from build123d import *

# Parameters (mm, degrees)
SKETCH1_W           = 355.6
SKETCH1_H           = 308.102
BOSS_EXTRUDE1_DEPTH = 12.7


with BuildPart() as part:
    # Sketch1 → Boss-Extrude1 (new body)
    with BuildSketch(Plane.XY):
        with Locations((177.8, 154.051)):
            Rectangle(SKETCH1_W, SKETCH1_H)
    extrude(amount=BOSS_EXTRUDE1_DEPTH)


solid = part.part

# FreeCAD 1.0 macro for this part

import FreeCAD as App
import Part
import Sketcher

V = App.Vector
Q = App.Units.Quantity

doc = App.newDocument("Part")
body = doc.addObject("PartDesign::Body", "Body")

# Sketch on XY plane
sketch1 = body.newObject("Sketcher::SketchObject", "Sketch")
sketch1.AttachmentSupport = (doc.getObject("XY_Plane"), [""])
sketch1.MapMode = "FlatFace"
sketch1.addGeometry(Part.LineSegment(V(0, 308, 0), V(0, 0, 0)), False)
sketch1.addGeometry(Part.LineSegment(V(0, 0, 0), V(356, 0, 0)), False)
sketch1.addGeometry(Part.LineSegment(V(356, 0, 0), V(356, 308, 0)), False)
sketch1.addGeometry(Part.LineSegment(V(356, 308, 0), V(0, 308, 0)), False)
sketch1.addConstraint(Sketcher.Constraint("Coincident", 0, 2, 1, 1))
sketch1.addConstraint(Sketcher.Constraint("Coincident", 1, 2, 2, 1))
sketch1.addConstraint(Sketcher.Constraint("Coincident", 2, 2, 3, 1))
sketch1.addConstraint(Sketcher.Constraint("Coincident", 3, 2, 0, 1))
sketch1.addConstraint(Sketcher.Constraint("Vertical", 0))
sketch1.addConstraint(Sketcher.Constraint("Horizontal", 1))
sketch1.addConstraint(Sketcher.Constraint("Vertical", 2))
sketch1.addConstraint(Sketcher.Constraint("Horizontal", 3))
sketch1.addConstraint(Sketcher.Constraint("Coincident", 0, 2, -1, 1))
sketch1.addConstraint(Sketcher.Constraint("DistanceX", 1, 1, 1, 2, Q("14 in")))
sketch1.addConstraint(Sketcher.Constraint("DistanceY", 0, 2, 0, 1, Q("12.13 in")))
pad1 = body.newObject("PartDesign::Pad", "Pad")
pad1.Profile = sketch1
pad1.Length = Q("0.5 in")

doc.recompute()
